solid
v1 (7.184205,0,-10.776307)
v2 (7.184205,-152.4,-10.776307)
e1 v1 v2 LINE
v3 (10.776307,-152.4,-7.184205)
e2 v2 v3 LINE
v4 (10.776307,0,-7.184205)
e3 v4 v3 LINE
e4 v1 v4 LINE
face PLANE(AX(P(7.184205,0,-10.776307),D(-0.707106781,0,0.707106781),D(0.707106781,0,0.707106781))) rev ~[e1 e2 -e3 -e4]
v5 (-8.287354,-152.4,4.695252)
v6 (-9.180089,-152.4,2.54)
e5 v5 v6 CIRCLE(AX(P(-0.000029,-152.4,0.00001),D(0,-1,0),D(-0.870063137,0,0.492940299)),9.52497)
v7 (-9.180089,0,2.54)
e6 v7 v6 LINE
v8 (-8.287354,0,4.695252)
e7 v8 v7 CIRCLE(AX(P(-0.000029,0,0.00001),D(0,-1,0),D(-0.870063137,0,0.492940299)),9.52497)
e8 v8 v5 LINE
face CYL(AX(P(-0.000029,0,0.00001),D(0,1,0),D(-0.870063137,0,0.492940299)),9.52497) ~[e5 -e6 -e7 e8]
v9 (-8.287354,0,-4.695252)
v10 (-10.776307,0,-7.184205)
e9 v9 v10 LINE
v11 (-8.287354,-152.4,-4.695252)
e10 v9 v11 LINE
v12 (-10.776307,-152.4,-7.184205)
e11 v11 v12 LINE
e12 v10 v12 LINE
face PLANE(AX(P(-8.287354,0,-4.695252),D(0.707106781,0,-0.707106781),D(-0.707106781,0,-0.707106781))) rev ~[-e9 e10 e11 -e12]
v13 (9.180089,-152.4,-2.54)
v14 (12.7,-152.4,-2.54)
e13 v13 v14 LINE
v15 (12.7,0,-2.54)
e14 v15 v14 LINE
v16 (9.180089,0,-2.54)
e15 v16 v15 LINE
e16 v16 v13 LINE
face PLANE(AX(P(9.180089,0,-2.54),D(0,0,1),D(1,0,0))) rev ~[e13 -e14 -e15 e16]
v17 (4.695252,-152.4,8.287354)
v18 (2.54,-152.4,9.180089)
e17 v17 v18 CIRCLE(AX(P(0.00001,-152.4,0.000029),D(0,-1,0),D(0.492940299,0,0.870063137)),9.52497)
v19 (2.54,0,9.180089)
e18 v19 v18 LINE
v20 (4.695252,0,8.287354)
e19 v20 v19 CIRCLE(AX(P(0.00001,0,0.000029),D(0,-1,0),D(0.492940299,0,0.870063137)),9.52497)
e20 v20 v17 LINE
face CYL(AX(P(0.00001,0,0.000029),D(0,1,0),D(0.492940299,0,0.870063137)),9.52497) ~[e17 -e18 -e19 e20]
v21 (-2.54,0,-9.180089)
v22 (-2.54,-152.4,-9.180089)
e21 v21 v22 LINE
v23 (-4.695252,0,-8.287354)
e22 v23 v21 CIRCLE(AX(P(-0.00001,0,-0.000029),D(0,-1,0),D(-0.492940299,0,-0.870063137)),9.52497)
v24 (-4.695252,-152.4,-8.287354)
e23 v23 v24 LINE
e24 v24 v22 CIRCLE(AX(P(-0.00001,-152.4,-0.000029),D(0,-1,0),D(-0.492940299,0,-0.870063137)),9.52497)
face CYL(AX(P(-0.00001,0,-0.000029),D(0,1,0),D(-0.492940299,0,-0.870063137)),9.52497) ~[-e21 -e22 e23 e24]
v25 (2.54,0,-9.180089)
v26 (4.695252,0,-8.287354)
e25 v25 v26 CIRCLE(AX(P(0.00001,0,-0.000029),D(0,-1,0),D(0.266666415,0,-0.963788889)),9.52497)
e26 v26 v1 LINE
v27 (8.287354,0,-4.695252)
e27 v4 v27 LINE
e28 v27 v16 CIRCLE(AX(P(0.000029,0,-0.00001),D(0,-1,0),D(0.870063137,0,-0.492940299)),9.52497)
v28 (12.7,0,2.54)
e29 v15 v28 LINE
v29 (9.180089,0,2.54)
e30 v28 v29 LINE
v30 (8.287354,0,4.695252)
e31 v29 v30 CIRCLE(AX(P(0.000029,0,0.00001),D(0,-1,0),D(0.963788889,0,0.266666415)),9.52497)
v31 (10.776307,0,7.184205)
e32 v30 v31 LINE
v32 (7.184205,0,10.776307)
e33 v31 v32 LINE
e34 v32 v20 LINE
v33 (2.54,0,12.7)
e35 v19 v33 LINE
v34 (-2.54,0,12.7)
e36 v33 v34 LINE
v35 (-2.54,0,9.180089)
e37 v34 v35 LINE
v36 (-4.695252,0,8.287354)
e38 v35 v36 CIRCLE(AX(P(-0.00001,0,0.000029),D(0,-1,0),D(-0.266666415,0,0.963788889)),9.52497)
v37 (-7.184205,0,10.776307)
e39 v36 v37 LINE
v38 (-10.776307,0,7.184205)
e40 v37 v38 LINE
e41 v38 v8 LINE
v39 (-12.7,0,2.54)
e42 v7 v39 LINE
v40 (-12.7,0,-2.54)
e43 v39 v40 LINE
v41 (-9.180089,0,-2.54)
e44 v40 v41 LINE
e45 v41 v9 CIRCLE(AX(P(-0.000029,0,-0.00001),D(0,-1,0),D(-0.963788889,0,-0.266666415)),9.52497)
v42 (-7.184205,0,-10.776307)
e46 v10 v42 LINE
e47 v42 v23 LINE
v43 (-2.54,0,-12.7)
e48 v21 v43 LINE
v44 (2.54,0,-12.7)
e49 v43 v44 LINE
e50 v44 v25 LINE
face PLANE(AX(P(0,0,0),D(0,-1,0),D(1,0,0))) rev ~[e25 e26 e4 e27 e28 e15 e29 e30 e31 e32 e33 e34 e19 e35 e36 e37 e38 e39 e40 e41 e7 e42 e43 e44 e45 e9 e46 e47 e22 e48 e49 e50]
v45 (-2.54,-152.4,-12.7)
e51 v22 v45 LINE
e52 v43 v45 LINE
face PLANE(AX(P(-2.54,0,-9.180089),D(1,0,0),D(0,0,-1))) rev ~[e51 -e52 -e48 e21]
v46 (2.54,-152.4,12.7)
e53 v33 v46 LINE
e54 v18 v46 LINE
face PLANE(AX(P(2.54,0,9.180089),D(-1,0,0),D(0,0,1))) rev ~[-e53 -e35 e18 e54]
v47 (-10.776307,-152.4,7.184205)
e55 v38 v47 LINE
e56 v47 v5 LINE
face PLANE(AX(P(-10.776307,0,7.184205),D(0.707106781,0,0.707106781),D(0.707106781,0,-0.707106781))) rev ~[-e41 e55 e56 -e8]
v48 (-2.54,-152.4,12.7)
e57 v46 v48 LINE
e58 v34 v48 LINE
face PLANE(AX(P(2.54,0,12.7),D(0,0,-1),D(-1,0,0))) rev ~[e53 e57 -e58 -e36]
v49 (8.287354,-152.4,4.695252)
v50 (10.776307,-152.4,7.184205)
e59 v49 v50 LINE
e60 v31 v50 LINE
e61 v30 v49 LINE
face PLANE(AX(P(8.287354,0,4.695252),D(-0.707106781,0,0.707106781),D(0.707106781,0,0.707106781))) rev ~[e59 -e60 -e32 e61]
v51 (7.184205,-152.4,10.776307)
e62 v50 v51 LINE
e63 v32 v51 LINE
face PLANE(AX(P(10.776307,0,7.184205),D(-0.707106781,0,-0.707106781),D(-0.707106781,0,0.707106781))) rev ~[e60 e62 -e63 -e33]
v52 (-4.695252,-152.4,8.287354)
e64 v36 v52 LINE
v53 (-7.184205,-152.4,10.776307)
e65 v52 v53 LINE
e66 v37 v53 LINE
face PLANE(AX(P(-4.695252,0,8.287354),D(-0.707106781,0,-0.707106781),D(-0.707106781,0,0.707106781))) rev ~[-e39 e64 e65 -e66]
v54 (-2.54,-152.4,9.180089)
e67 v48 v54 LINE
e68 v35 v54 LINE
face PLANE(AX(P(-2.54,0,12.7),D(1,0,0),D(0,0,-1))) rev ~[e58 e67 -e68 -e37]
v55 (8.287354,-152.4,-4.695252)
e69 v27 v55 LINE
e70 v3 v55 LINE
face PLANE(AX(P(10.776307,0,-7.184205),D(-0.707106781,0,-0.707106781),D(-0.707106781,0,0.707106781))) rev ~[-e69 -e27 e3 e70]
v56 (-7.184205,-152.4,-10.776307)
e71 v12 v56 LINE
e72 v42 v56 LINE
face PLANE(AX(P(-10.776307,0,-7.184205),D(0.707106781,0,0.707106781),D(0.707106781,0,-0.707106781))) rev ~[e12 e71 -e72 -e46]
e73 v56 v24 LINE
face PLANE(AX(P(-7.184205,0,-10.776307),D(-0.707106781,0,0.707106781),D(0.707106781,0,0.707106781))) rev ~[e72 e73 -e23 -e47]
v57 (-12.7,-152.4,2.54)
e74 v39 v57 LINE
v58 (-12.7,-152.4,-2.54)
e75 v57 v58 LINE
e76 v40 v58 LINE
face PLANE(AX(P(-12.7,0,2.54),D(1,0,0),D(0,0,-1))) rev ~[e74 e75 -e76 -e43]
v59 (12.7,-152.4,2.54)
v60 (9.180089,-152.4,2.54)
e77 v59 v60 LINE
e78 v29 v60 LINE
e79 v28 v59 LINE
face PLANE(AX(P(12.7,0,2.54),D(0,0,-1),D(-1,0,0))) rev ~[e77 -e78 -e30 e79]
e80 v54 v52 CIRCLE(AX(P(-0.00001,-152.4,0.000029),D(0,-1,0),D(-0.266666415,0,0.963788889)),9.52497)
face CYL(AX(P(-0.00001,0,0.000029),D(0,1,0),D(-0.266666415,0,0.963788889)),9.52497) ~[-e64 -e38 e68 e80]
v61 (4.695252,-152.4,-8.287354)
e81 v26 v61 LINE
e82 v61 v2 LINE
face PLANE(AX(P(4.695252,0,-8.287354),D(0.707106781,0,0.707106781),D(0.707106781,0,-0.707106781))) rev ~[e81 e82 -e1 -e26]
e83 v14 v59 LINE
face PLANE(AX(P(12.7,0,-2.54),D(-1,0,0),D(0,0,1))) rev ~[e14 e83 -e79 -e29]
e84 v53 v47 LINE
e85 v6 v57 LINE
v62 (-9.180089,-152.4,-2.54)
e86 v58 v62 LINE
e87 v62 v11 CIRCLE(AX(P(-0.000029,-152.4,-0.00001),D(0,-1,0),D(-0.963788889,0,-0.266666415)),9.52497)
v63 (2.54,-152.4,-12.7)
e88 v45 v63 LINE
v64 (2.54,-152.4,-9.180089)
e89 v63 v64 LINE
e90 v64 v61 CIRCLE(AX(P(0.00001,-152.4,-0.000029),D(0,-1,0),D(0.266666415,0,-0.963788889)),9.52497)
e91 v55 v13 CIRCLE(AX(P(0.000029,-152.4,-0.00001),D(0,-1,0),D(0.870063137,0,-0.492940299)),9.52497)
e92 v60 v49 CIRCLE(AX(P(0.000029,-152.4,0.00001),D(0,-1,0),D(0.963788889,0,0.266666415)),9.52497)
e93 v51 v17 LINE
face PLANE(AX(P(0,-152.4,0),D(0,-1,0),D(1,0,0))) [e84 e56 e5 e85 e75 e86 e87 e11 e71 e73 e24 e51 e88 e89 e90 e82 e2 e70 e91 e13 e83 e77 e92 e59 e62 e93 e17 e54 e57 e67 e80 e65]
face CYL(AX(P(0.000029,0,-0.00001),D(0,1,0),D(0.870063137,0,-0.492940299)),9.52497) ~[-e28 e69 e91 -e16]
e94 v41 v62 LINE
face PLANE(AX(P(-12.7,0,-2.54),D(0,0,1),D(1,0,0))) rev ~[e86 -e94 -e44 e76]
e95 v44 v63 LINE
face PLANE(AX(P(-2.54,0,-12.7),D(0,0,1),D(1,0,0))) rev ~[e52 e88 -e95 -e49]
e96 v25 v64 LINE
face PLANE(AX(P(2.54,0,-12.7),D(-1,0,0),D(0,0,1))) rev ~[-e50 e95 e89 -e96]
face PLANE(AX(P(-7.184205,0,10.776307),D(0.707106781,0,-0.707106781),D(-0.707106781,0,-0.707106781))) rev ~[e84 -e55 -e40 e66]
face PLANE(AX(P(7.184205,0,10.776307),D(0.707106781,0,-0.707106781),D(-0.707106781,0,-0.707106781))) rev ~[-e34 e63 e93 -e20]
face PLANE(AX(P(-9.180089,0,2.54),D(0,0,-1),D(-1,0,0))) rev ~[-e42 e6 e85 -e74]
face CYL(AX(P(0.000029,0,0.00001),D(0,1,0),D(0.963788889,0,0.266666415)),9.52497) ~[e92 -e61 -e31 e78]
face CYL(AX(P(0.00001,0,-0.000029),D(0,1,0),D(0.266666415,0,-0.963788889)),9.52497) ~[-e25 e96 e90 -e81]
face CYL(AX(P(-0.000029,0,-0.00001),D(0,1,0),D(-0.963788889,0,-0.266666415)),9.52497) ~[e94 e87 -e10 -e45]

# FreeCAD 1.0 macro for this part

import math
import FreeCAD as App
import Part
import Sketcher
from FreeCAD import Vector
Q = App.Units.Quantity

doc = App.newDocument("Part")
params = doc.addObject("Spreadsheet::Sheet", "Params")
for row, (alias, value) in enumerate([
    ("sketch1_width", "0.2 in"),
    ("sketch1_length", "0.2 in"),
    ("pad1_length", "6 in"),
], start=1):
    params.set(f"A{row}", alias)
    params.set(f"B{row}", "=" + value)
    params.setAlias(f"B{row}", alias)

body = doc.addObject("PartDesign::Body", "Body")

# Sketch on XZ plane
sketch1 = doc.addObject("Sketcher::SketchObject", "Sketch")
body.addObject(sketch1)
sketch1.AttachmentSupport = (doc.XZ_Plane, [""])
sketch1.MapMode = "FlatFace"
sketch1.addGeometry(Part.LineSegment(Vector(2.54, 12.7, 0), Vector(-2.54, 12.7, 0)), False)
sketch1.addGeometry(Part.LineSegment(Vector(-2.54, 12.7, 0), Vector(-2.54, 9.180089, 0)), False)
sketch1.addGeometry(Part.ArcOfCircle(Part.Circle(Vector(-0.00001, 0.000029, 0), Vector(0, 0, 1), 9.52497), math.radians(105.465995), math.radians(119.534023)), False)
sketch1.addGeometry(Part.LineSegment(Vector(-4.695252, 8.287354, 0), Vector(-7.184205, 10.776307, 0)), False)
sketch1.addGeometry(Part.LineSegment(Vector(-7.184205, 10.776307, 0), Vector(-10.776307, 7.184205, 0)), False)
sketch1.addGeometry(Part.LineSegment(Vector(-10.776307, 7.184205, 0), Vector(-8.287354, 4.695252, 0)), False)
sketch1.addGeometry(Part.ArcOfCircle(Part.Circle(Vector(-0.000029, 0.00001, 0), Vector(0, 0, 1), 9.52497), math.radians(150.465977), math.radians(164.534005)), False)
sketch1.addGeometry(Part.LineSegment(Vector(-9.180089, 2.54, 0), Vector(-12.7, 2.54, 0)), False)
sketch1.addGeometry(Part.LineSegment(Vector(-12.7, 2.54, 0), Vector(-12.7, -2.54, 0)), False)
sketch1.addGeometry(Part.LineSegment(Vector(-12.7, -2.54, 0), Vector(-9.180089, -2.54, 0)), False)
sketch1.addGeometry(Part.ArcOfCircle(Part.Circle(Vector(-0.000029, -0.00001, 0), Vector(0, 0, 1), 9.52497), math.radians(-164.534005), math.radians(-150.465977)), False)
sketch1.addGeometry(Part.LineSegment(Vector(-8.287354, -4.695252, 0), Vector(-10.776307, -7.184205, 0)), False)
sketch1.addGeometry(Part.LineSegment(Vector(-10.776307, -7.184205, 0), Vector(-7.184205, -10.776307, 0)), False)
sketch1.addGeometry(Part.LineSegment(Vector(-7.184205, -10.776307, 0), Vector(-4.695252, -8.287354, 0)), False)
sketch1.addGeometry(Part.ArcOfCircle(Part.Circle(Vector(-0.00001, -0.000029, 0), Vector(0, 0, 1), 9.52497), math.radians(-119.534023), math.radians(-105.465995)), False)
sketch1.addGeometry(Part.LineSegment(Vector(-2.54, -9.180089, 0), Vector(-2.54, -12.7, 0)), False)
sketch1.addGeometry(Part.LineSegment(Vector(-2.54, -12.7, 0), Vector(2.54, -12.7, 0)), False)
sketch1.addGeometry(Part.LineSegment(Vector(2.54, -12.7, 0), Vector(2.54, -9.180089, 0)), False)
sketch1.addGeometry(Part.ArcOfCircle(Part.Circle(Vector(0.00001, -0.000029, 0), Vector(0, 0, 1), 9.52497), math.radians(-74.534005), math.radians(-60.465977)), False)
sketch1.addGeometry(Part.LineSegment(Vector(4.695252, -8.287354, 0), Vector(7.184205, -10.776307, 0)), False)
sketch1.addGeometry(Part.LineSegment(Vector(7.184205, -10.776307, 0), Vector(10.776307, -7.184205, 0)), False)
sketch1.addGeometry(Part.LineSegment(Vector(10.776307, -7.184205, 0), Vector(8.287354, -4.695252, 0)), False)
sketch1.addGeometry(Part.ArcOfCircle(Part.Circle(Vector(0.000029, -0.00001, 0), Vector(0, 0, 1), 9.52497), math.radians(-29.534023), math.radians(-15.465995)), False)
sketch1.addGeometry(Part.LineSegment(Vector(9.180089, -2.54, 0), Vector(12.7, -2.54, 0)), False)
sketch1.addGeometry(Part.LineSegment(Vector(12.7, -2.54, 0), Vector(12.7, 2.54, 0)), False)
sketch1.addGeometry(Part.LineSegment(Vector(12.7, 2.54, 0), Vector(9.180089, 2.54, 0)), False)
sketch1.addGeometry(Part.ArcOfCircle(Part.Circle(Vector(0.000029, 0.00001, 0), Vector(0, 0, 1), 9.52497), math.radians(15.465995), math.radians(29.534023)), False)
sketch1.addGeometry(Part.LineSegment(Vector(8.287354, 4.695252, 0), Vector(10.776307, 7.184205, 0)), False)
sketch1.addGeometry(Part.LineSegment(Vector(10.776307, 7.184205, 0), Vector(7.184205, 10.776307, 0)), False)
sketch1.addGeometry(Part.LineSegment(Vector(7.184205, 10.776307, 0), Vector(4.695252, 8.287354, 0)), False)
sketch1.addGeometry(Part.ArcOfCircle(Part.Circle(Vector(0.00001, 0.000029, 0), Vector(0, 0, 1), 9.52497), math.radians(60.465977), math.radians(74.534005)), False)
sketch1.addGeometry(Part.LineSegment(Vector(2.54, 9.180089, 0), Vector(2.54, 12.7, 0)), False)
sketch1.addConstraint(Sketcher.Constraint("Coincident", 0, 2, 1, 1))
sketch1.addConstraint(Sketcher.Constraint("Coincident", 1, 2, 2, 1))
sketch1.addConstraint(Sketcher.Constraint("Coincident", 2, 2, 3, 1))
sketch1.addConstraint(Sketcher.Constraint("Coincident", 3, 2, 4, 1))
sketch1.addConstraint(Sketcher.Constraint("Coincident", 4, 2, 5, 1))
sketch1.addConstraint(Sketcher.Constraint("Coincident", 5, 2, 6, 1))
sketch1.addConstraint(Sketcher.Constraint("Coincident", 6, 2, 7, 1))
sketch1.addConstraint(Sketcher.Constraint("Coincident", 7, 2, 8, 1))
sketch1.addConstraint(Sketcher.Constraint("Coincident", 8, 2, 9, 1))
sketch1.addConstraint(Sketcher.Constraint("Coincident", 9, 2, 10, 1))
sketch1.addConstraint(Sketcher.Constraint("Coincident", 10, 2, 11, 1))
sketch1.addConstraint(Sketcher.Constraint("Coincident", 11, 2, 12, 1))
sketch1.addConstraint(Sketcher.Constraint("Coincident", 12, 2, 13, 1))
sketch1.addConstraint(Sketcher.Constraint("Coincident", 13, 2, 14, 1))
sketch1.addConstraint(Sketcher.Constraint("Coincident", 14, 2, 15, 1))
sketch1.addConstraint(Sketcher.Constraint("Coincident", 15, 2, 16, 1))
sketch1.addConstraint(Sketcher.Constraint("Coincident", 16, 2, 17, 1))
sketch1.addConstraint(Sketcher.Constraint("Coincident", 17, 2, 18, 1))
sketch1.addConstraint(Sketcher.Constraint("Coincident", 18, 2, 19, 1))
sketch1.addConstraint(Sketcher.Constraint("Coincident", 19, 2, 20, 1))
sketch1.addConstraint(Sketcher.Constraint("Coincident", 20, 2, 21, 1))
sketch1.addConstraint(Sketcher.Constraint("Coincident", 21, 2, 22, 1))
sketch1.addConstraint(Sketcher.Constraint("Coincident", 22, 2, 23, 1))
sketch1.addConstraint(Sketcher.Constraint("Coincident", 23, 2, 24, 1))
sketch1.addConstraint(Sketcher.Constraint("Coincident", 24, 2, 25, 1))
sketch1.addConstraint(Sketcher.Constraint("Coincident", 25, 2, 26, 1))
sketch1.addConstraint(Sketcher.Constraint("Coincident", 26, 2, 27, 1))
sketch1.addConstraint(Sketcher.Constraint("Coincident", 27, 2, 28, 1))
sketch1.addConstraint(Sketcher.Constraint("Coincident", 28, 2, 29, 1))
sketch1.addConstraint(Sketcher.Constraint("Coincident", 29, 2, 30, 1))
sketch1.addConstraint(Sketcher.Constraint("Coincident", 30, 2, 31, 1))
sketch1.addConstraint(Sketcher.Constraint("Coincident", 31, 2, 0, 1))
sketch1.addConstraint(Sketcher.Constraint("Horizontal", 0))
sketch1.addConstraint(Sketcher.Constraint("Vertical", 1))
sketch1.addConstraint(Sketcher.Constraint("Horizontal", 7))
sketch1.addConstraint(Sketcher.Constraint("Vertical", 8))
sketch1.addConstraint(Sketcher.Constraint("Horizontal", 9))
sketch1.addConstraint(Sketcher.Constraint("Vertical", 15))
sketch1.addConstraint(Sketcher.Constraint("Horizontal", 16))
sketch1.addConstraint(Sketcher.Constraint("Vertical", 17))
sketch1.addConstraint(Sketcher.Constraint("Horizontal", 23))
sketch1.addConstraint(Sketcher.Constraint("Vertical", 24))
sketch1.addConstraint(Sketcher.Constraint("Horizontal", 25))
sketch1.addConstraint(Sketcher.Constraint("Vertical", 31))
sketch1.addConstraint(Sketcher.Constraint("Equal", 2, 6))
sketch1.addConstraint(Sketcher.Constraint("Equal", 6, 10))
sketch1.addConstraint(Sketcher.Constraint("Equal", 10, 14))
sketch1.addConstraint(Sketcher.Constraint("Equal", 14, 18))
sketch1.addConstraint(Sketcher.Constraint("Equal", 18, 22))
sketch1.addConstraint(Sketcher.Constraint("Equal", 22, 26))
sketch1.addConstraint(Sketcher.Constraint("Equal", 26, 30))
sketch1.addConstraint(Sketcher.Constraint("Symmetric", 2, 3, 18, 3, -1, 1))
sketch1.addConstraint(Sketcher.Constraint("Symmetric", 6, 3, 22, 3, -1, 1))
sketch1.addConstraint(Sketcher.Constraint("Symmetric", 10, 3, 26, 3, -1, 1))
sketch1.addConstraint(Sketcher.Constraint("Symmetric", 14, 3, 30, 3, -1, 1))
sketch1.addConstraint(Sketcher.Constraint("Symmetric", 0, 2, 16, 2, -1, 1))
sketch1.addConstraint(Sketcher.Constraint("Symmetric", 3, 2, 19, 2, -1, 1))
sketch1.addConstraint(Sketcher.Constraint("Symmetric", 4, 2, 20, 2, -1, 1))
sketch1.addConstraint(Sketcher.Constraint("Symmetric", 7, 2, 23, 2, -1, 1))
sketch1.addConstraint(Sketcher.Constraint("Symmetric", 11, 2, 27, 2, -1, 1))
sketch1.addConstraint(Sketcher.Constraint("Symmetric", 12, 2, 28, 2, -1, 1))
sketch1.addConstraint(Sketcher.Constraint("Symmetric", 14, 3, 18, 3, -2))
sketch1.addConstraint(Sketcher.Constraint("Symmetric", 10, 3, 22, 3, -2))
sketch1.addConstraint(Sketcher.Constraint("Symmetric", 12, 2, 19, 2, -2))
sketch1.addConstraint(Sketcher.Constraint("Symmetric", 11, 2, 20, 2, -2))
sketch1.addConstraint(Sketcher.Constraint("Perpendicular", 3, 4))
sketch1.addConstraint(Sketcher.Constraint("Perpendicular", 4, 5))
sketch1.addConstraint(Sketcher.Constraint("Perpendicular", 5, 11))
sketch1.addConstraint(Sketcher.Constraint("Perpendicular", 11, 12))
sketch1.addConstraint(Sketcher.Constraint("Perpendicular", 12, 13))
sketch1.addConstraint(Sketcher.Constraint("Perpendicular", 13, 19))
sketch1.addConstraint(Sketcher.Constraint("Perpendicular", 20, 21))
sketch1.addConstraint(Sketcher.Constraint("Perpendicular", 21, 27))
sketch1.addConstraint(Sketcher.Constraint("Perpendicular", 28, 29))
sketch1.addConstraint(Sketcher.Constraint("Horizontal", 14, 2, 17, 2))
sketch1.addConstraint(Sketcher.Constraint("Horizontal", 9, 2, 22, 2))
sketch1.addConstraint(Sketcher.Constraint("Horizontal", 7, 2, 24, 2))
sketch1.addConstraint(Sketcher.Constraint("Horizontal", 1, 2, 30, 2))
sketch1.addConstraint(Sketcher.Constraint("Equal", 25, 1))
sketch1.addConstraint(Sketcher.Constraint("Equal", 16, 8))
sketch1.addConstraint(Sketcher.Constraint("Equal", 3, 5))
sketch1.addConstraint(Sketcher.Constraint("DistanceX", 0, 2, 0, 1, Q("0.2 in")))
sketch1.addConstraint(Sketcher.Constraint("Distance", 4, Q("0.2 in")))
sketch1.addConstraint(Sketcher.Constraint("DistanceY", -1, 1, 0, 2, Q("0.5 in")))
sketch1.addConstraint(Sketcher.Constraint("DistanceX", 7, 2, -1, 1, Q("0.5 in")))
sketch1.addConstraint(Sketcher.Constraint("Radius", 2, Q("9.52497 mm")))
sketch1.addConstraint(Sketcher.Constraint("DistanceX", 7, 2, 7, 1, Q("3.519911 mm")))
sketch1.addConstraint(Sketcher.Constraint("Distance", 3, Q("3.519911 mm")))
sketch1.addConstraint(Sketcher.Constraint("DistanceX", 2, 2, -1, 1, Q("4.695252 mm")))
sketch1.addConstraint(Sketcher.Constraint("DistanceY", 10, 2, -1, 1, Q("4.695252 mm")))
sketch1.setExpression("Constraints[81]", "Params.sketch1_width")
sketch1.setExpression("Constraints[82]", "Params.sketch1_length")
pad1 = doc.addObject("PartDesign::Pad", "Pad")
body.addObject(pad1)
pad1.Profile = sketch1
pad1.setExpression("Length", "Params.pad1_length")

doc.recompute()
